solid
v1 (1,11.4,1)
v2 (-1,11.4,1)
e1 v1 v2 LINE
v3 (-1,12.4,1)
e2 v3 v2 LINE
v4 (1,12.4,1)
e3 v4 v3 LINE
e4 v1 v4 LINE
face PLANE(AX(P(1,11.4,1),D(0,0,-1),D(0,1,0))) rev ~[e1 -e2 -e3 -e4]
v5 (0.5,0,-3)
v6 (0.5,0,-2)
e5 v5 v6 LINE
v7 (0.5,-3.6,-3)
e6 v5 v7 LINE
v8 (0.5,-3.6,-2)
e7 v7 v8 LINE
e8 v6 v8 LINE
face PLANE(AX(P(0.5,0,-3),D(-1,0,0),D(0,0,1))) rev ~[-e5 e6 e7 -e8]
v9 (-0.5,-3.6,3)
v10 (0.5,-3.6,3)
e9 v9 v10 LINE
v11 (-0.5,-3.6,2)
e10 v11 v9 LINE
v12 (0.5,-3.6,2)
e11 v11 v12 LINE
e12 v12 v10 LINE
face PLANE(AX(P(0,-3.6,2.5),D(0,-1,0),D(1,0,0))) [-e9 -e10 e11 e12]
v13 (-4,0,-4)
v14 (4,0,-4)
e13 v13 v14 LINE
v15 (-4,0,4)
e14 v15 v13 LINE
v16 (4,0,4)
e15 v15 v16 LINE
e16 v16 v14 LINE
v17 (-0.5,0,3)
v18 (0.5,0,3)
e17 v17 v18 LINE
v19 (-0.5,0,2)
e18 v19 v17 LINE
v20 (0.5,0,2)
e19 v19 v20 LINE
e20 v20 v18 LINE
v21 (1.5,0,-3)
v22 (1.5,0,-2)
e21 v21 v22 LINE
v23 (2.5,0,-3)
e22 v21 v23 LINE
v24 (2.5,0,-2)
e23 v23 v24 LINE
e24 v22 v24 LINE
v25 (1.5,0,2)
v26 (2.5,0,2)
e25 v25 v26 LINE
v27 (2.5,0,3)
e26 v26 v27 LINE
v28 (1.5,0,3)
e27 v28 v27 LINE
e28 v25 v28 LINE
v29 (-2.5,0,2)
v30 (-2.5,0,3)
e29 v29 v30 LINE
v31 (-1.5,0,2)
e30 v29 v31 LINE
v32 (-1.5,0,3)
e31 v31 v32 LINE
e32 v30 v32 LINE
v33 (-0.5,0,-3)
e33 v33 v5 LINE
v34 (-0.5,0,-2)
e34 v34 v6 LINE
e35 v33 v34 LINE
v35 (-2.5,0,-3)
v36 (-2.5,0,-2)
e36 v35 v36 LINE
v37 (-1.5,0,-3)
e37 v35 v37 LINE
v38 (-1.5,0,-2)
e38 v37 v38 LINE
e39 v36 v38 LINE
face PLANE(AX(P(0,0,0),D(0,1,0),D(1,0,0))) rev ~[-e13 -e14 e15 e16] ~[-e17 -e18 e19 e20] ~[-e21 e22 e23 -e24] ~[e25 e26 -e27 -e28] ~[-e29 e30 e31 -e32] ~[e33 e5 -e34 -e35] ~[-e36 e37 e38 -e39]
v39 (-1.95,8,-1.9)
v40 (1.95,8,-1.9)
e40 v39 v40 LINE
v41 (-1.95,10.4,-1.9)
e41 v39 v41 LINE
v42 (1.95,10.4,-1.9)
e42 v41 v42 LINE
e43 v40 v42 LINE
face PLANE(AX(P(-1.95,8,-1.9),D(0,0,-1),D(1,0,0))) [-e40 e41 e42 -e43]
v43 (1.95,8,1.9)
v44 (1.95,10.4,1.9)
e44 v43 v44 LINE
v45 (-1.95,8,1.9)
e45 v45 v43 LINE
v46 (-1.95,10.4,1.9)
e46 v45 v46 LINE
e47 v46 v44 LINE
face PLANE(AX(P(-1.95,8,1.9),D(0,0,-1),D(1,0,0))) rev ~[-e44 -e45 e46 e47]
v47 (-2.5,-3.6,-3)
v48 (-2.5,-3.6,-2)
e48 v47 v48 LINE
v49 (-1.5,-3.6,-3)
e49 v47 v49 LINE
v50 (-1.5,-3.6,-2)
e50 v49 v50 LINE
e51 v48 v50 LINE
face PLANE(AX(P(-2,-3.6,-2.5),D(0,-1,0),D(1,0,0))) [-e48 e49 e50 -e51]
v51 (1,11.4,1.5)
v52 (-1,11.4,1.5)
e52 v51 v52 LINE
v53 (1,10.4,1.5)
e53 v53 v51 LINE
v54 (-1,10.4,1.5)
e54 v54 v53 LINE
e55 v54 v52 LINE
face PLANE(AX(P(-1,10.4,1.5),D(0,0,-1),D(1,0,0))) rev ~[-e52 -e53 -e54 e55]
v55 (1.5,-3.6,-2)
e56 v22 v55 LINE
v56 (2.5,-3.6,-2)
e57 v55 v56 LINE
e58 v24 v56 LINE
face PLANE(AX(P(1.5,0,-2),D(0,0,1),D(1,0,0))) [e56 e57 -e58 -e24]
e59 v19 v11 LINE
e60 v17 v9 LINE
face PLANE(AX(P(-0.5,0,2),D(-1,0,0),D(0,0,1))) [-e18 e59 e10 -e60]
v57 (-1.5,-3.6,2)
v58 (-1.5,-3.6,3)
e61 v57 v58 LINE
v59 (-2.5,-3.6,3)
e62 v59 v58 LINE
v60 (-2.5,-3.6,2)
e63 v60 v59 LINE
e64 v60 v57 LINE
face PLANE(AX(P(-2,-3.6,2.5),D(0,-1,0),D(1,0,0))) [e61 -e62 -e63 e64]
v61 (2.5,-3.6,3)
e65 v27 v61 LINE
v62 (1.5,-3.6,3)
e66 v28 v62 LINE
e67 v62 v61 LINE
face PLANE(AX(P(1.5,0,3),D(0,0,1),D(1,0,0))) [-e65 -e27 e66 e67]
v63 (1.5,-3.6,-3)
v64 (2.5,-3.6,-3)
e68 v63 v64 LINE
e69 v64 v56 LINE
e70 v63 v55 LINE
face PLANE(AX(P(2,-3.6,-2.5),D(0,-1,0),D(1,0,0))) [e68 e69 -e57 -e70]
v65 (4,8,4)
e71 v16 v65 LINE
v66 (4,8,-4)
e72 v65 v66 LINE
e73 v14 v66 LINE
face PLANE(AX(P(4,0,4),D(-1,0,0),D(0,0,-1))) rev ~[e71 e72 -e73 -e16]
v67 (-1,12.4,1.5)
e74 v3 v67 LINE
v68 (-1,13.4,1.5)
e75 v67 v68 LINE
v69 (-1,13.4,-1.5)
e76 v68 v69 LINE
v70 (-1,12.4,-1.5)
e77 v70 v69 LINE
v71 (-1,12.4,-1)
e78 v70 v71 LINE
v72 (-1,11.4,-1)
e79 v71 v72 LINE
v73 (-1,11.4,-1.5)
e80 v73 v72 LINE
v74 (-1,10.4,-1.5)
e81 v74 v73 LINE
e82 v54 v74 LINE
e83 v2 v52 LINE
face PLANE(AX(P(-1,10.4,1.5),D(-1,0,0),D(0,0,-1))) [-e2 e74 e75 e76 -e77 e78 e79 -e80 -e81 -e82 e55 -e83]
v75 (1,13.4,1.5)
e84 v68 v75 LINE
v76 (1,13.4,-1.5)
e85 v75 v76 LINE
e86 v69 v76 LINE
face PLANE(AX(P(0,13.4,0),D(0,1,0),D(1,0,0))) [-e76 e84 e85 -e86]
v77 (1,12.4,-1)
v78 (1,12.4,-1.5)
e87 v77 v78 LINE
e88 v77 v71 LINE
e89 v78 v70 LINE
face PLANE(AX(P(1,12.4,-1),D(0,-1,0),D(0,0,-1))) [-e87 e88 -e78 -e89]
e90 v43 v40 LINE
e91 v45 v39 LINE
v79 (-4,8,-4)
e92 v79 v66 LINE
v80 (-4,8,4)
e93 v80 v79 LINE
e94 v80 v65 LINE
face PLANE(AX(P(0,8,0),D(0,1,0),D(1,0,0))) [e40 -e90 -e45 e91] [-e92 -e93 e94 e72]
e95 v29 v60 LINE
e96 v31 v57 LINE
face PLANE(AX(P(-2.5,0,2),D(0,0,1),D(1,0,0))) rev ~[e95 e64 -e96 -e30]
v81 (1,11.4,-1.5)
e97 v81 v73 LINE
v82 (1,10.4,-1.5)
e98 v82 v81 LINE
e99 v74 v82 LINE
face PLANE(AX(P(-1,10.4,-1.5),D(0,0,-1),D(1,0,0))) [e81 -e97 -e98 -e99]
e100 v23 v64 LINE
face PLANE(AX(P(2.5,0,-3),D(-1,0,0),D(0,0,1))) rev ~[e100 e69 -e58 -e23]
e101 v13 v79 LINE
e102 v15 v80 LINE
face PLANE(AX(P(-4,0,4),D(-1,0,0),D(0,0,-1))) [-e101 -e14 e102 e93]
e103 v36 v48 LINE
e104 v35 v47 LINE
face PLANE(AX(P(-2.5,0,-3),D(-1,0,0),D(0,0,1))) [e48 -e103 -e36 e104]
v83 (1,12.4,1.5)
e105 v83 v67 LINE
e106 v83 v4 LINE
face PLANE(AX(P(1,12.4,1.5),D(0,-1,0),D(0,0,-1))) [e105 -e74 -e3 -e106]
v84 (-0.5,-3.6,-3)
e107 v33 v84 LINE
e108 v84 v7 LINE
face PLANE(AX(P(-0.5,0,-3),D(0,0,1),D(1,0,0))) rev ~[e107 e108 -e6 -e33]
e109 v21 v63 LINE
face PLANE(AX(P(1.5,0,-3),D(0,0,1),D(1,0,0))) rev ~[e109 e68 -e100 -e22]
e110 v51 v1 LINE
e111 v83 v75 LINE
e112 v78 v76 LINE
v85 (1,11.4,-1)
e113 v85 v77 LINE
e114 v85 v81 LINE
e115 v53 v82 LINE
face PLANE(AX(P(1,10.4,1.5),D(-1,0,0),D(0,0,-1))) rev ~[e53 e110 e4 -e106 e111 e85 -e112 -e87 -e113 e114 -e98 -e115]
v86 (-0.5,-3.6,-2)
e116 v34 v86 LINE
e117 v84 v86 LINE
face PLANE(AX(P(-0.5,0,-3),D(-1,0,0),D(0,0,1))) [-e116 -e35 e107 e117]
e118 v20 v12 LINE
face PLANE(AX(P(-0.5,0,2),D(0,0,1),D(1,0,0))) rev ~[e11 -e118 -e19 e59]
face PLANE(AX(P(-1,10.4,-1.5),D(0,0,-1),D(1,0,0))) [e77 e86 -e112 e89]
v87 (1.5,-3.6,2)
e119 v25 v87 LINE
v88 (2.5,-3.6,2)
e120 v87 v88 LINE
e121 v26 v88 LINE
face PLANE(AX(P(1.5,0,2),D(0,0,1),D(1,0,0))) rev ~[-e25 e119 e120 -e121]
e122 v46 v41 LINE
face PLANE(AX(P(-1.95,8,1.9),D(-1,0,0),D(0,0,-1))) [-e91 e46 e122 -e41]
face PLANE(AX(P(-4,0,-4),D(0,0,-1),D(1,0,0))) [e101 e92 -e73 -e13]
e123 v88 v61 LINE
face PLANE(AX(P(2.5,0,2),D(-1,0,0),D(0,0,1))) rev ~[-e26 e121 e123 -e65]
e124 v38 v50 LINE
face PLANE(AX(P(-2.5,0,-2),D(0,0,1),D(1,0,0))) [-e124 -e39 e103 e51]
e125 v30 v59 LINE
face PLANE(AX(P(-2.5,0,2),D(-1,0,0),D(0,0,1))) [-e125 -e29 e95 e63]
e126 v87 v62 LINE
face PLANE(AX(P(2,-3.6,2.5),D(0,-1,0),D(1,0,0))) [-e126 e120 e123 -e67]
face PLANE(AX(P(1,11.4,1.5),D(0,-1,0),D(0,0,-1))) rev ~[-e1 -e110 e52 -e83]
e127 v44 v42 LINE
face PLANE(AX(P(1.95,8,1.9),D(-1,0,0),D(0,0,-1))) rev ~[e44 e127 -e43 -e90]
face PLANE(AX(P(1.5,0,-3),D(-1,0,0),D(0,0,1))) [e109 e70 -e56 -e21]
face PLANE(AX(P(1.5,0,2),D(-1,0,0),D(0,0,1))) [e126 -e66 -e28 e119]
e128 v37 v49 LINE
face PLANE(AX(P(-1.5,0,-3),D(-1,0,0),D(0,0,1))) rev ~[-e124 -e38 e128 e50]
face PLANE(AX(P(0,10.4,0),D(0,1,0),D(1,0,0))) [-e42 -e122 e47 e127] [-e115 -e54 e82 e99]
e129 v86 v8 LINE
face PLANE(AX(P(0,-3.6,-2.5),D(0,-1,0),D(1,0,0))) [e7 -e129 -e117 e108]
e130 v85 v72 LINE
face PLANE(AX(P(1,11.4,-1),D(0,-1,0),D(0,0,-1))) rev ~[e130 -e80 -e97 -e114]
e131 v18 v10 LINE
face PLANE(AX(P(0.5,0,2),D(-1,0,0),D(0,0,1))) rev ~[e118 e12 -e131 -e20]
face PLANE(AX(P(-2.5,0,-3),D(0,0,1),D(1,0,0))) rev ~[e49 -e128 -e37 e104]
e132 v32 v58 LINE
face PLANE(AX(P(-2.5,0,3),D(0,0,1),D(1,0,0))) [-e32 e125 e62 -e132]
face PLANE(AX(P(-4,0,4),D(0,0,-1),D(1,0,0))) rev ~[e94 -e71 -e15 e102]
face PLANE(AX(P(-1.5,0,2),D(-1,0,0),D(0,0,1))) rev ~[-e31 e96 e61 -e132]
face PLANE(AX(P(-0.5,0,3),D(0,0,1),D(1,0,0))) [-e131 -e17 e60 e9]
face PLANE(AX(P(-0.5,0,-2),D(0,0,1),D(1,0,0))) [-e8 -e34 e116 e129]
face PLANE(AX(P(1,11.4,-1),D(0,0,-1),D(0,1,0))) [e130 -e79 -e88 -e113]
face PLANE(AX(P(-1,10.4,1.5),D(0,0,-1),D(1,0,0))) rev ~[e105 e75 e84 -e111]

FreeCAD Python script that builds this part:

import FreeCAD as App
import Part
import Sketcher

doc = App.newDocument("Part")
body = doc.addObject("PartDesign::Body", "Body")

# Sketch on XZ plane
sketch1 = body.newObject("Sketcher::SketchObject", "Sketch")
sketch1.AttachmentSupport = (doc.getObject("XZ_Plane"), [""])
sketch1.MapMode = "FlatFace"
sketch1.addGeometry([
    Part.LineSegment(App.Vector(-4, -4, 0), App.Vector(-4, 4, 0)),
    Part.LineSegment(App.Vector(-4, 4, 0), App.Vector(4, 4, 0)),
    Part.LineSegment(App.Vector(4, 4, 0), App.Vector(4, -4, 0)),
    Part.LineSegment(App.Vector(4, -4, 0), App.Vector(-4, -4, 0)),
], False)
sketch1.addConstraint([
    Sketcher.Constraint("Coincident", 0, 2, 1, 1),
    Sketcher.Constraint("Coincident", 1, 2, 2, 1),
    Sketcher.Constraint("Coincident", 2, 2, 3, 1),
    Sketcher.Constraint("Coincident", 3, 2, 0, 1),
    Sketcher.Constraint("Vertical", 0),
    Sketcher.Constraint("Horizontal", 1),
    Sketcher.Constraint("Vertical", 2),
    Sketcher.Constraint("Horizontal", 3),
    Sketcher.Constraint("Symmetric", 0, 2, 2, 2, -1, 1),
    Sketcher.Constraint("Equal", 3, 0),
    Sketcher.Constraint("DistanceX", 1, 1, 1, 2, 8.0),
])
pad1 = body.newObject("PartDesign::Pad", "Pad")
pad1.Profile = sketch1
pad1.Length = 8
pad1.Reversed = True

# Sketch on XZ plane
sketch2 = body.newObject("Sketcher::SketchObject", "Sketch001")
sketch2.AttachmentSupport = (doc.getObject("XZ_Plane"), [""])
sketch2.MapMode = "FlatFace"
sketch2.AttachmentOffset = App.Placement(App.Vector(0, 0, -8), App.Rotation())
sketch2.addGeometry([
    Part.LineSegment(App.Vector(-1.9, -1.9, 0), App.Vector(-1.9, 1.9, 0)),
    Part.LineSegment(App.Vector(-1.9, 1.9, 0), App.Vector(1.9, 1.9, 0)),
    Part.LineSegment(App.Vector(1.9, 1.9, 0), App.Vector(1.9, -1.9, 0)),
    Part.LineSegment(App.Vector(1.9, -1.9, 0), App.Vector(-1.9, -1.9, 0)),
], False)
sketch2.addConstraint([
    Sketcher.Constraint("Coincident", 0, 2, 1, 1),
    Sketcher.Constraint("Coincident", 1, 2, 2, 1),
    Sketcher.Constraint("Coincident", 2, 2, 3, 1),
    Sketcher.Constraint("Coincident", 3, 2, 0, 1),
    Sketcher.Constraint("Vertical", 0),
    Sketcher.Constraint("Horizontal", 1),
    Sketcher.Constraint("Vertical", 2),
    Sketcher.Constraint("Horizontal", 3),
    Sketcher.Constraint("Symmetric", 0, 2, 2, 2, -1, 1),
    Sketcher.Constraint("DistanceX", 1, 1, 1, 2, 3.9),
    Sketcher.Constraint("DistanceY", 0, 1, 0, 2, 3.8),
])
pad2 = body.newObject("PartDesign::Pad", "Pad001")
pad2.Profile = sketch2
pad2.Length = 2.4
pad2.Reversed = True

# Sketch on XZ plane
sketch3 = body.newObject("Sketcher::SketchObject", "Sketch002")
sketch3.AttachmentSupport = (doc.getObject("XZ_Plane"), [""])
sketch3.MapMode = "FlatFace"
sketch3.AttachmentOffset = App.Placement(App.Vector(0, 0, -10.4), App.Rotation())
sketch3.addGeometry([
    Part.LineSegment(App.Vector(-1, -1.5, 0), App.Vector(-1, 1.5, 0)),
    Part.LineSegment(App.Vector(-1, 1.5, 0), App.Vector(1, 1.5, 0)),
    Part.LineSegment(App.Vector(1, 1.5, 0), App.Vector(1, -1.5, 0)),
    Part.LineSegment(App.Vector(1, -1.5, 0), App.Vector(-1, -1.5, 0)),
], False)
sketch3.addConstraint([
    Sketcher.Constraint("Coincident", 0, 2, 1, 1),
    Sketcher.Constraint("Coincident", 1, 2, 2, 1),
    Sketcher.Constraint("Coincident", 2, 2, 3, 1),
    Sketcher.Constraint("Coincident", 3, 2, 0, 1),
    Sketcher.Constraint("Vertical", 0),
    Sketcher.Constraint("Horizontal", 1),
    Sketcher.Constraint("Vertical", 2),
    Sketcher.Constraint("Horizontal", 3),
    Sketcher.Constraint("Symmetric", 0, 2, 2, 2, -1, 1),
    Sketcher.Constraint("DistanceX", 1, 1, 1, 2, 2.0),
    Sketcher.Constraint("DistanceY", 0, 1, 0, 2, 3.0),
])
pad3 = body.newObject("PartDesign::Pad", "Pad002")
pad3.Profile = sketch3
pad3.Length = 3
pad3.Reversed = True

# Sketch on XZ plane
sketch4 = body.newObject("Sketcher::SketchObject", "Sketch003")
sketch4.AttachmentSupport = (doc.getObject("XZ_Plane"), [""])
sketch4.MapMode = "FlatFace"
sketch4.addGeometry([
    Part.LineSegment(App.Vector(-0.5, 3, 0), App.Vector(-0.5, 2, 0)),  # 0
    Part.LineSegment(App.Vector(-0.5, 2, 0), App.Vector(0.5, 2, 0)),  # 1
    Part.LineSegment(App.Vector(0.5, 2, 0), App.Vector(0.5, 3, 0)),  # 2
    Part.LineSegment(App.Vector(0.5, 3, 0), App.Vector(-0.5, 3, 0)),  # 3
    Part.LineSegment(App.Vector(-2.5, 3, 0), App.Vector(-2.5, 2, 0)),  # 4
    Part.LineSegment(App.Vector(-2.5, 2, 0), App.Vector(-1.5, 2, 0)),  # 5
    Part.LineSegment(App.Vector(-1.5, 2, 0), App.Vector(-1.5, 3, 0)),  # 6
    Part.LineSegment(App.Vector(-1.5, 3, 0), App.Vector(-2.5, 3, 0)),  # 7
    Part.LineSegment(App.Vector(1.5, 3, 0), App.Vector(1.5, 2, 0)),  # 8
    Part.LineSegment(App.Vector(1.5, 2, 0), App.Vector(2.5, 2, 0)),  # 9
    Part.LineSegment(App.Vector(2.5, 2, 0), App.Vector(2.5, 3, 0)),  # 10
    Part.LineSegment(App.Vector(2.5, 3, 0), App.Vector(1.5, 3, 0)),  # 11
    Part.LineSegment(App.Vector(-0.5, -2, 0), App.Vector(-0.5, -3, 0)),  # 12
    Part.LineSegment(App.Vector(-0.5, -3, 0), App.Vector(0.5, -3, 0)),  # 13
    Part.LineSegment(App.Vector(0.5, -3, 0), App.Vector(0.5, -2, 0)),  # 14
    Part.LineSegment(App.Vector(0.5, -2, 0), App.Vector(-0.5, -2, 0)),  # 15
    Part.LineSegment(App.Vector(1.5, -2, 0), App.Vector(1.5, -3, 0)),  # 16
    Part.LineSegment(App.Vector(1.5, -3, 0), App.Vector(2.5, -3, 0)),  # 17
    Part.LineSegment(App.Vector(2.5, -3, 0), App.Vector(2.5, -2, 0)),  # 18
    Part.LineSegment(App.Vector(2.5, -2, 0), App.Vector(1.5, -2, 0)),  # 19
    Part.LineSegment(App.Vector(-2.5, -2, 0), App.Vector(-2.5, -3, 0)),  # 20
    Part.LineSegment(App.Vector(-2.5, -3, 0), App.Vector(-1.5, -3, 0)),  # 21
    Part.LineSegment(App.Vector(-1.5, -3, 0), App.Vector(-1.5, -2, 0)),  # 22
    Part.LineSegment(App.Vector(-1.5, -2, 0), App.Vector(-2.5, -2, 0)),  # 23
], False)
sketch4.addConstraint([
    Sketcher.Constraint("Coincident", 0, 2, 1, 1),
    Sketcher.Constraint("Coincident", 1, 2, 2, 1),
    Sketcher.Constraint("Coincident", 2, 2, 3, 1),
    Sketcher.Constraint("Coincident", 3, 2, 0, 1),
    Sketcher.Constraint("Coincident", 4, 2, 5, 1),
    Sketcher.Constraint("Coincident", 5, 2, 6, 1),
    Sketcher.Constraint("Coincident", 6, 2, 7, 1),
    Sketcher.Constraint("Coincident", 7, 2, 4, 1),
    Sketcher.Constraint("Coincident", 8, 2, 9, 1),
    Sketcher.Constraint("Coincident", 9, 2, 10, 1),
    Sketcher.Constraint("Coincident", 10, 2, 11, 1),
    Sketcher.Constraint("Coincident", 11, 2, 8, 1),
    Sketcher.Constraint("Coincident", 12, 2, 13, 1),
    Sketcher.Constraint("Coincident", 13, 2, 14, 1),
    Sketcher.Constraint("Coincident", 14, 2, 15, 1),
    Sketcher.Constraint("Coincident", 15, 2, 12, 1),
    Sketcher.Constraint("Coincident", 16, 2, 17, 1),
    Sketcher.Constraint("Coincident", 17, 2, 18, 1),
    Sketcher.Constraint("Coincident", 18, 2, 19, 1),
    Sketcher.Constraint("Coincident", 19, 2, 16, 1),
    Sketcher.Constraint("Coincident", 20, 2, 21, 1),
    Sketcher.Constraint("Coincident", 21, 2, 22, 1),
    Sketcher.Constraint("Coincident", 22, 2, 23, 1),
    Sketcher.Constraint("Coincident", 23, 2, 20, 1),
    Sketcher.Constraint("Vertical", 0),
    Sketcher.Constraint("Horizontal", 1),
    Sketcher.Constraint("Vertical", 2),
    Sketcher.Constraint("Horizontal", 3),
    Sketcher.Constraint("Vertical", 4),
    Sketcher.Constraint("Horizontal", 5),
    Sketcher.Constraint("Vertical", 6),
    Sketcher.Constraint("Horizontal", 7),
    Sketcher.Constraint("Vertical", 8),
    Sketcher.Constraint("Horizontal", 9),
    Sketcher.Constraint("Vertical", 10),
    Sketcher.Constraint("Horizontal", 11),
    Sketcher.Constraint("Vertical", 12),
    Sketcher.Constraint("Horizontal", 13),
    Sketcher.Constraint("Vertical", 14),
    Sketcher.Constraint("Horizontal", 15),
    Sketcher.Constraint("Vertical", 16),
    Sketcher.Constraint("Horizontal", 17),
    Sketcher.Constraint("Vertical", 18),
    Sketcher.Constraint("Horizontal", 19),
    Sketcher.Constraint("Vertical", 20),
    Sketcher.Constraint("Horizontal", 21),
    Sketcher.Constraint("Vertical", 22),
    Sketcher.Constraint("Horizontal", 23),
    Sketcher.Constraint("Symmetric", 2, 2, 12, 2, -1, 1),
    Sketcher.Constraint("Symmetric", 0, 2, 14, 2, -1, 1),
    Sketcher.Constraint("Symmetric", 6, 2, 16, 2, -1, 1),
    Sketcher.Constraint("Symmetric", 4, 2, 18, 2, -1, 1),
    Sketcher.Constraint("Symmetric", 10, 2, 20, 2, -1, 1),
    Sketcher.Constraint("Symmetric", 8, 2, 22, 2, -1, 1),
    Sketcher.Constraint("Symmetric", 5, 2, 8, 2, -2),
    Sketcher.Constraint("Symmetric", 7, 2, 10, 2, -2),
    Sketcher.Constraint("Horizontal", 1, 2, 4, 2),
    Sketcher.Constraint("Horizontal", 3, 2, 6, 2),
    Sketcher.Constraint("Vertical", 3, 2, 12, 2),
    Sketcher.Constraint("Equal", 3, 5),
    Sketcher.Constraint("Equal", 23, 0),
    Sketcher.Constraint("DistanceX", 1, 1, 1, 2, 1.0),
    Sketcher.Constraint("DistanceY", -1, 1, 0, 2, 2.0),
    Sketcher.Constraint("DistanceX", 4, 2, 0, 2, 2.0),
])
pad4 = body.newObject("PartDesign::Pad", "Pad003")
pad4.Profile = sketch4
pad4.Length = 3.6

# Sketch on YZ plane
sketch5 = body.newObject("Sketcher::SketchObject", "Sketch004")
sketch5.AttachmentSupport = (doc.getObject("YZ_Plane"), [""])
sketch5.MapMode = "FlatFace"
sketch5.AttachmentOffset = App.Placement(App.Vector(0, 0, 1), App.Rotation())
sketch5.addGeometry([
    Part.LineSegment(App.Vector(12.4, 1.5, 0), App.Vector(11.4, 1.5, 0)),  # 0
    Part.LineSegment(App.Vector(11.4, 1.5, 0), App.Vector(11.4, 1, 0)),  # 1
    Part.LineSegment(App.Vector(11.4, 1, 0), App.Vector(12.4, 1, 0)),  # 2
    Part.LineSegment(App.Vector(12.4, 1, 0), App.Vector(12.4, 1.5, 0)),  # 3
    Part.LineSegment(App.Vector(12.4, -1, 0), App.Vector(11.4, -1, 0)),  # 4
    Part.LineSegment(App.Vector(11.4, -1, 0), App.Vector(11.4, -1.5, 0)),  # 5
    Part.LineSegment(App.Vector(11.4, -1.5, 0), App.Vector(12.4, -1.5, 0)),  # 6
    Part.LineSegment(App.Vector(12.4, -1.5, 0), App.Vector(12.4, -1, 0)),  # 7
], False)
sketch5.addConstraint([
    Sketcher.Constraint("Coincident", 0, 2, 1, 1),
    Sketcher.Constraint("Coincident", 1, 2, 2, 1),
    Sketcher.Constraint("Coincident", 2, 2, 3, 1),
    Sketcher.Constraint("Coincident", 3, 2, 0, 1),
    Sketcher.Constraint("Coincident", 4, 2, 5, 1),
    Sketcher.Constraint("Coincident", 5, 2, 6, 1),
    Sketcher.Constraint("Coincident", 6, 2, 7, 1),
    Sketcher.Constraint("Coincident", 7, 2, 4, 1),
    Sketcher.Constraint("Horizontal", 0),
    Sketcher.Constraint("Vertical", 1),
    Sketcher.Constraint("Horizontal", 2),
    Sketcher.Constraint("Vertical", 3),
    Sketcher.Constraint("Horizontal", 4),
    Sketcher.Constraint("Vertical", 5),
    Sketcher.Constraint("Horizontal", 6),
    Sketcher.Constraint("Vertical", 7),
    Sketcher.Constraint("Symmetric", 1, 2, 4, 2, -1),
    Sketcher.Constraint("Symmetric", 3, 2, 6, 2, -1),
    Sketcher.Constraint("DistanceX", 0, 2, 0, 1, 1.0),
    Sketcher.Constraint("DistanceY", 1, 2, 1, 1, 0.5),
    Sketcher.Constraint("DistanceY", -1, 1, 1, 2, 1.0),
    Sketcher.Constraint("DistanceX", -1, 1, 0, 2, 11.4),
])
pocket1 = body.newObject("PartDesign::Pocket", "Pocket")
pocket1.Profile = sketch5
pocket1.Type = "ThroughAll"

doc.recompute()
